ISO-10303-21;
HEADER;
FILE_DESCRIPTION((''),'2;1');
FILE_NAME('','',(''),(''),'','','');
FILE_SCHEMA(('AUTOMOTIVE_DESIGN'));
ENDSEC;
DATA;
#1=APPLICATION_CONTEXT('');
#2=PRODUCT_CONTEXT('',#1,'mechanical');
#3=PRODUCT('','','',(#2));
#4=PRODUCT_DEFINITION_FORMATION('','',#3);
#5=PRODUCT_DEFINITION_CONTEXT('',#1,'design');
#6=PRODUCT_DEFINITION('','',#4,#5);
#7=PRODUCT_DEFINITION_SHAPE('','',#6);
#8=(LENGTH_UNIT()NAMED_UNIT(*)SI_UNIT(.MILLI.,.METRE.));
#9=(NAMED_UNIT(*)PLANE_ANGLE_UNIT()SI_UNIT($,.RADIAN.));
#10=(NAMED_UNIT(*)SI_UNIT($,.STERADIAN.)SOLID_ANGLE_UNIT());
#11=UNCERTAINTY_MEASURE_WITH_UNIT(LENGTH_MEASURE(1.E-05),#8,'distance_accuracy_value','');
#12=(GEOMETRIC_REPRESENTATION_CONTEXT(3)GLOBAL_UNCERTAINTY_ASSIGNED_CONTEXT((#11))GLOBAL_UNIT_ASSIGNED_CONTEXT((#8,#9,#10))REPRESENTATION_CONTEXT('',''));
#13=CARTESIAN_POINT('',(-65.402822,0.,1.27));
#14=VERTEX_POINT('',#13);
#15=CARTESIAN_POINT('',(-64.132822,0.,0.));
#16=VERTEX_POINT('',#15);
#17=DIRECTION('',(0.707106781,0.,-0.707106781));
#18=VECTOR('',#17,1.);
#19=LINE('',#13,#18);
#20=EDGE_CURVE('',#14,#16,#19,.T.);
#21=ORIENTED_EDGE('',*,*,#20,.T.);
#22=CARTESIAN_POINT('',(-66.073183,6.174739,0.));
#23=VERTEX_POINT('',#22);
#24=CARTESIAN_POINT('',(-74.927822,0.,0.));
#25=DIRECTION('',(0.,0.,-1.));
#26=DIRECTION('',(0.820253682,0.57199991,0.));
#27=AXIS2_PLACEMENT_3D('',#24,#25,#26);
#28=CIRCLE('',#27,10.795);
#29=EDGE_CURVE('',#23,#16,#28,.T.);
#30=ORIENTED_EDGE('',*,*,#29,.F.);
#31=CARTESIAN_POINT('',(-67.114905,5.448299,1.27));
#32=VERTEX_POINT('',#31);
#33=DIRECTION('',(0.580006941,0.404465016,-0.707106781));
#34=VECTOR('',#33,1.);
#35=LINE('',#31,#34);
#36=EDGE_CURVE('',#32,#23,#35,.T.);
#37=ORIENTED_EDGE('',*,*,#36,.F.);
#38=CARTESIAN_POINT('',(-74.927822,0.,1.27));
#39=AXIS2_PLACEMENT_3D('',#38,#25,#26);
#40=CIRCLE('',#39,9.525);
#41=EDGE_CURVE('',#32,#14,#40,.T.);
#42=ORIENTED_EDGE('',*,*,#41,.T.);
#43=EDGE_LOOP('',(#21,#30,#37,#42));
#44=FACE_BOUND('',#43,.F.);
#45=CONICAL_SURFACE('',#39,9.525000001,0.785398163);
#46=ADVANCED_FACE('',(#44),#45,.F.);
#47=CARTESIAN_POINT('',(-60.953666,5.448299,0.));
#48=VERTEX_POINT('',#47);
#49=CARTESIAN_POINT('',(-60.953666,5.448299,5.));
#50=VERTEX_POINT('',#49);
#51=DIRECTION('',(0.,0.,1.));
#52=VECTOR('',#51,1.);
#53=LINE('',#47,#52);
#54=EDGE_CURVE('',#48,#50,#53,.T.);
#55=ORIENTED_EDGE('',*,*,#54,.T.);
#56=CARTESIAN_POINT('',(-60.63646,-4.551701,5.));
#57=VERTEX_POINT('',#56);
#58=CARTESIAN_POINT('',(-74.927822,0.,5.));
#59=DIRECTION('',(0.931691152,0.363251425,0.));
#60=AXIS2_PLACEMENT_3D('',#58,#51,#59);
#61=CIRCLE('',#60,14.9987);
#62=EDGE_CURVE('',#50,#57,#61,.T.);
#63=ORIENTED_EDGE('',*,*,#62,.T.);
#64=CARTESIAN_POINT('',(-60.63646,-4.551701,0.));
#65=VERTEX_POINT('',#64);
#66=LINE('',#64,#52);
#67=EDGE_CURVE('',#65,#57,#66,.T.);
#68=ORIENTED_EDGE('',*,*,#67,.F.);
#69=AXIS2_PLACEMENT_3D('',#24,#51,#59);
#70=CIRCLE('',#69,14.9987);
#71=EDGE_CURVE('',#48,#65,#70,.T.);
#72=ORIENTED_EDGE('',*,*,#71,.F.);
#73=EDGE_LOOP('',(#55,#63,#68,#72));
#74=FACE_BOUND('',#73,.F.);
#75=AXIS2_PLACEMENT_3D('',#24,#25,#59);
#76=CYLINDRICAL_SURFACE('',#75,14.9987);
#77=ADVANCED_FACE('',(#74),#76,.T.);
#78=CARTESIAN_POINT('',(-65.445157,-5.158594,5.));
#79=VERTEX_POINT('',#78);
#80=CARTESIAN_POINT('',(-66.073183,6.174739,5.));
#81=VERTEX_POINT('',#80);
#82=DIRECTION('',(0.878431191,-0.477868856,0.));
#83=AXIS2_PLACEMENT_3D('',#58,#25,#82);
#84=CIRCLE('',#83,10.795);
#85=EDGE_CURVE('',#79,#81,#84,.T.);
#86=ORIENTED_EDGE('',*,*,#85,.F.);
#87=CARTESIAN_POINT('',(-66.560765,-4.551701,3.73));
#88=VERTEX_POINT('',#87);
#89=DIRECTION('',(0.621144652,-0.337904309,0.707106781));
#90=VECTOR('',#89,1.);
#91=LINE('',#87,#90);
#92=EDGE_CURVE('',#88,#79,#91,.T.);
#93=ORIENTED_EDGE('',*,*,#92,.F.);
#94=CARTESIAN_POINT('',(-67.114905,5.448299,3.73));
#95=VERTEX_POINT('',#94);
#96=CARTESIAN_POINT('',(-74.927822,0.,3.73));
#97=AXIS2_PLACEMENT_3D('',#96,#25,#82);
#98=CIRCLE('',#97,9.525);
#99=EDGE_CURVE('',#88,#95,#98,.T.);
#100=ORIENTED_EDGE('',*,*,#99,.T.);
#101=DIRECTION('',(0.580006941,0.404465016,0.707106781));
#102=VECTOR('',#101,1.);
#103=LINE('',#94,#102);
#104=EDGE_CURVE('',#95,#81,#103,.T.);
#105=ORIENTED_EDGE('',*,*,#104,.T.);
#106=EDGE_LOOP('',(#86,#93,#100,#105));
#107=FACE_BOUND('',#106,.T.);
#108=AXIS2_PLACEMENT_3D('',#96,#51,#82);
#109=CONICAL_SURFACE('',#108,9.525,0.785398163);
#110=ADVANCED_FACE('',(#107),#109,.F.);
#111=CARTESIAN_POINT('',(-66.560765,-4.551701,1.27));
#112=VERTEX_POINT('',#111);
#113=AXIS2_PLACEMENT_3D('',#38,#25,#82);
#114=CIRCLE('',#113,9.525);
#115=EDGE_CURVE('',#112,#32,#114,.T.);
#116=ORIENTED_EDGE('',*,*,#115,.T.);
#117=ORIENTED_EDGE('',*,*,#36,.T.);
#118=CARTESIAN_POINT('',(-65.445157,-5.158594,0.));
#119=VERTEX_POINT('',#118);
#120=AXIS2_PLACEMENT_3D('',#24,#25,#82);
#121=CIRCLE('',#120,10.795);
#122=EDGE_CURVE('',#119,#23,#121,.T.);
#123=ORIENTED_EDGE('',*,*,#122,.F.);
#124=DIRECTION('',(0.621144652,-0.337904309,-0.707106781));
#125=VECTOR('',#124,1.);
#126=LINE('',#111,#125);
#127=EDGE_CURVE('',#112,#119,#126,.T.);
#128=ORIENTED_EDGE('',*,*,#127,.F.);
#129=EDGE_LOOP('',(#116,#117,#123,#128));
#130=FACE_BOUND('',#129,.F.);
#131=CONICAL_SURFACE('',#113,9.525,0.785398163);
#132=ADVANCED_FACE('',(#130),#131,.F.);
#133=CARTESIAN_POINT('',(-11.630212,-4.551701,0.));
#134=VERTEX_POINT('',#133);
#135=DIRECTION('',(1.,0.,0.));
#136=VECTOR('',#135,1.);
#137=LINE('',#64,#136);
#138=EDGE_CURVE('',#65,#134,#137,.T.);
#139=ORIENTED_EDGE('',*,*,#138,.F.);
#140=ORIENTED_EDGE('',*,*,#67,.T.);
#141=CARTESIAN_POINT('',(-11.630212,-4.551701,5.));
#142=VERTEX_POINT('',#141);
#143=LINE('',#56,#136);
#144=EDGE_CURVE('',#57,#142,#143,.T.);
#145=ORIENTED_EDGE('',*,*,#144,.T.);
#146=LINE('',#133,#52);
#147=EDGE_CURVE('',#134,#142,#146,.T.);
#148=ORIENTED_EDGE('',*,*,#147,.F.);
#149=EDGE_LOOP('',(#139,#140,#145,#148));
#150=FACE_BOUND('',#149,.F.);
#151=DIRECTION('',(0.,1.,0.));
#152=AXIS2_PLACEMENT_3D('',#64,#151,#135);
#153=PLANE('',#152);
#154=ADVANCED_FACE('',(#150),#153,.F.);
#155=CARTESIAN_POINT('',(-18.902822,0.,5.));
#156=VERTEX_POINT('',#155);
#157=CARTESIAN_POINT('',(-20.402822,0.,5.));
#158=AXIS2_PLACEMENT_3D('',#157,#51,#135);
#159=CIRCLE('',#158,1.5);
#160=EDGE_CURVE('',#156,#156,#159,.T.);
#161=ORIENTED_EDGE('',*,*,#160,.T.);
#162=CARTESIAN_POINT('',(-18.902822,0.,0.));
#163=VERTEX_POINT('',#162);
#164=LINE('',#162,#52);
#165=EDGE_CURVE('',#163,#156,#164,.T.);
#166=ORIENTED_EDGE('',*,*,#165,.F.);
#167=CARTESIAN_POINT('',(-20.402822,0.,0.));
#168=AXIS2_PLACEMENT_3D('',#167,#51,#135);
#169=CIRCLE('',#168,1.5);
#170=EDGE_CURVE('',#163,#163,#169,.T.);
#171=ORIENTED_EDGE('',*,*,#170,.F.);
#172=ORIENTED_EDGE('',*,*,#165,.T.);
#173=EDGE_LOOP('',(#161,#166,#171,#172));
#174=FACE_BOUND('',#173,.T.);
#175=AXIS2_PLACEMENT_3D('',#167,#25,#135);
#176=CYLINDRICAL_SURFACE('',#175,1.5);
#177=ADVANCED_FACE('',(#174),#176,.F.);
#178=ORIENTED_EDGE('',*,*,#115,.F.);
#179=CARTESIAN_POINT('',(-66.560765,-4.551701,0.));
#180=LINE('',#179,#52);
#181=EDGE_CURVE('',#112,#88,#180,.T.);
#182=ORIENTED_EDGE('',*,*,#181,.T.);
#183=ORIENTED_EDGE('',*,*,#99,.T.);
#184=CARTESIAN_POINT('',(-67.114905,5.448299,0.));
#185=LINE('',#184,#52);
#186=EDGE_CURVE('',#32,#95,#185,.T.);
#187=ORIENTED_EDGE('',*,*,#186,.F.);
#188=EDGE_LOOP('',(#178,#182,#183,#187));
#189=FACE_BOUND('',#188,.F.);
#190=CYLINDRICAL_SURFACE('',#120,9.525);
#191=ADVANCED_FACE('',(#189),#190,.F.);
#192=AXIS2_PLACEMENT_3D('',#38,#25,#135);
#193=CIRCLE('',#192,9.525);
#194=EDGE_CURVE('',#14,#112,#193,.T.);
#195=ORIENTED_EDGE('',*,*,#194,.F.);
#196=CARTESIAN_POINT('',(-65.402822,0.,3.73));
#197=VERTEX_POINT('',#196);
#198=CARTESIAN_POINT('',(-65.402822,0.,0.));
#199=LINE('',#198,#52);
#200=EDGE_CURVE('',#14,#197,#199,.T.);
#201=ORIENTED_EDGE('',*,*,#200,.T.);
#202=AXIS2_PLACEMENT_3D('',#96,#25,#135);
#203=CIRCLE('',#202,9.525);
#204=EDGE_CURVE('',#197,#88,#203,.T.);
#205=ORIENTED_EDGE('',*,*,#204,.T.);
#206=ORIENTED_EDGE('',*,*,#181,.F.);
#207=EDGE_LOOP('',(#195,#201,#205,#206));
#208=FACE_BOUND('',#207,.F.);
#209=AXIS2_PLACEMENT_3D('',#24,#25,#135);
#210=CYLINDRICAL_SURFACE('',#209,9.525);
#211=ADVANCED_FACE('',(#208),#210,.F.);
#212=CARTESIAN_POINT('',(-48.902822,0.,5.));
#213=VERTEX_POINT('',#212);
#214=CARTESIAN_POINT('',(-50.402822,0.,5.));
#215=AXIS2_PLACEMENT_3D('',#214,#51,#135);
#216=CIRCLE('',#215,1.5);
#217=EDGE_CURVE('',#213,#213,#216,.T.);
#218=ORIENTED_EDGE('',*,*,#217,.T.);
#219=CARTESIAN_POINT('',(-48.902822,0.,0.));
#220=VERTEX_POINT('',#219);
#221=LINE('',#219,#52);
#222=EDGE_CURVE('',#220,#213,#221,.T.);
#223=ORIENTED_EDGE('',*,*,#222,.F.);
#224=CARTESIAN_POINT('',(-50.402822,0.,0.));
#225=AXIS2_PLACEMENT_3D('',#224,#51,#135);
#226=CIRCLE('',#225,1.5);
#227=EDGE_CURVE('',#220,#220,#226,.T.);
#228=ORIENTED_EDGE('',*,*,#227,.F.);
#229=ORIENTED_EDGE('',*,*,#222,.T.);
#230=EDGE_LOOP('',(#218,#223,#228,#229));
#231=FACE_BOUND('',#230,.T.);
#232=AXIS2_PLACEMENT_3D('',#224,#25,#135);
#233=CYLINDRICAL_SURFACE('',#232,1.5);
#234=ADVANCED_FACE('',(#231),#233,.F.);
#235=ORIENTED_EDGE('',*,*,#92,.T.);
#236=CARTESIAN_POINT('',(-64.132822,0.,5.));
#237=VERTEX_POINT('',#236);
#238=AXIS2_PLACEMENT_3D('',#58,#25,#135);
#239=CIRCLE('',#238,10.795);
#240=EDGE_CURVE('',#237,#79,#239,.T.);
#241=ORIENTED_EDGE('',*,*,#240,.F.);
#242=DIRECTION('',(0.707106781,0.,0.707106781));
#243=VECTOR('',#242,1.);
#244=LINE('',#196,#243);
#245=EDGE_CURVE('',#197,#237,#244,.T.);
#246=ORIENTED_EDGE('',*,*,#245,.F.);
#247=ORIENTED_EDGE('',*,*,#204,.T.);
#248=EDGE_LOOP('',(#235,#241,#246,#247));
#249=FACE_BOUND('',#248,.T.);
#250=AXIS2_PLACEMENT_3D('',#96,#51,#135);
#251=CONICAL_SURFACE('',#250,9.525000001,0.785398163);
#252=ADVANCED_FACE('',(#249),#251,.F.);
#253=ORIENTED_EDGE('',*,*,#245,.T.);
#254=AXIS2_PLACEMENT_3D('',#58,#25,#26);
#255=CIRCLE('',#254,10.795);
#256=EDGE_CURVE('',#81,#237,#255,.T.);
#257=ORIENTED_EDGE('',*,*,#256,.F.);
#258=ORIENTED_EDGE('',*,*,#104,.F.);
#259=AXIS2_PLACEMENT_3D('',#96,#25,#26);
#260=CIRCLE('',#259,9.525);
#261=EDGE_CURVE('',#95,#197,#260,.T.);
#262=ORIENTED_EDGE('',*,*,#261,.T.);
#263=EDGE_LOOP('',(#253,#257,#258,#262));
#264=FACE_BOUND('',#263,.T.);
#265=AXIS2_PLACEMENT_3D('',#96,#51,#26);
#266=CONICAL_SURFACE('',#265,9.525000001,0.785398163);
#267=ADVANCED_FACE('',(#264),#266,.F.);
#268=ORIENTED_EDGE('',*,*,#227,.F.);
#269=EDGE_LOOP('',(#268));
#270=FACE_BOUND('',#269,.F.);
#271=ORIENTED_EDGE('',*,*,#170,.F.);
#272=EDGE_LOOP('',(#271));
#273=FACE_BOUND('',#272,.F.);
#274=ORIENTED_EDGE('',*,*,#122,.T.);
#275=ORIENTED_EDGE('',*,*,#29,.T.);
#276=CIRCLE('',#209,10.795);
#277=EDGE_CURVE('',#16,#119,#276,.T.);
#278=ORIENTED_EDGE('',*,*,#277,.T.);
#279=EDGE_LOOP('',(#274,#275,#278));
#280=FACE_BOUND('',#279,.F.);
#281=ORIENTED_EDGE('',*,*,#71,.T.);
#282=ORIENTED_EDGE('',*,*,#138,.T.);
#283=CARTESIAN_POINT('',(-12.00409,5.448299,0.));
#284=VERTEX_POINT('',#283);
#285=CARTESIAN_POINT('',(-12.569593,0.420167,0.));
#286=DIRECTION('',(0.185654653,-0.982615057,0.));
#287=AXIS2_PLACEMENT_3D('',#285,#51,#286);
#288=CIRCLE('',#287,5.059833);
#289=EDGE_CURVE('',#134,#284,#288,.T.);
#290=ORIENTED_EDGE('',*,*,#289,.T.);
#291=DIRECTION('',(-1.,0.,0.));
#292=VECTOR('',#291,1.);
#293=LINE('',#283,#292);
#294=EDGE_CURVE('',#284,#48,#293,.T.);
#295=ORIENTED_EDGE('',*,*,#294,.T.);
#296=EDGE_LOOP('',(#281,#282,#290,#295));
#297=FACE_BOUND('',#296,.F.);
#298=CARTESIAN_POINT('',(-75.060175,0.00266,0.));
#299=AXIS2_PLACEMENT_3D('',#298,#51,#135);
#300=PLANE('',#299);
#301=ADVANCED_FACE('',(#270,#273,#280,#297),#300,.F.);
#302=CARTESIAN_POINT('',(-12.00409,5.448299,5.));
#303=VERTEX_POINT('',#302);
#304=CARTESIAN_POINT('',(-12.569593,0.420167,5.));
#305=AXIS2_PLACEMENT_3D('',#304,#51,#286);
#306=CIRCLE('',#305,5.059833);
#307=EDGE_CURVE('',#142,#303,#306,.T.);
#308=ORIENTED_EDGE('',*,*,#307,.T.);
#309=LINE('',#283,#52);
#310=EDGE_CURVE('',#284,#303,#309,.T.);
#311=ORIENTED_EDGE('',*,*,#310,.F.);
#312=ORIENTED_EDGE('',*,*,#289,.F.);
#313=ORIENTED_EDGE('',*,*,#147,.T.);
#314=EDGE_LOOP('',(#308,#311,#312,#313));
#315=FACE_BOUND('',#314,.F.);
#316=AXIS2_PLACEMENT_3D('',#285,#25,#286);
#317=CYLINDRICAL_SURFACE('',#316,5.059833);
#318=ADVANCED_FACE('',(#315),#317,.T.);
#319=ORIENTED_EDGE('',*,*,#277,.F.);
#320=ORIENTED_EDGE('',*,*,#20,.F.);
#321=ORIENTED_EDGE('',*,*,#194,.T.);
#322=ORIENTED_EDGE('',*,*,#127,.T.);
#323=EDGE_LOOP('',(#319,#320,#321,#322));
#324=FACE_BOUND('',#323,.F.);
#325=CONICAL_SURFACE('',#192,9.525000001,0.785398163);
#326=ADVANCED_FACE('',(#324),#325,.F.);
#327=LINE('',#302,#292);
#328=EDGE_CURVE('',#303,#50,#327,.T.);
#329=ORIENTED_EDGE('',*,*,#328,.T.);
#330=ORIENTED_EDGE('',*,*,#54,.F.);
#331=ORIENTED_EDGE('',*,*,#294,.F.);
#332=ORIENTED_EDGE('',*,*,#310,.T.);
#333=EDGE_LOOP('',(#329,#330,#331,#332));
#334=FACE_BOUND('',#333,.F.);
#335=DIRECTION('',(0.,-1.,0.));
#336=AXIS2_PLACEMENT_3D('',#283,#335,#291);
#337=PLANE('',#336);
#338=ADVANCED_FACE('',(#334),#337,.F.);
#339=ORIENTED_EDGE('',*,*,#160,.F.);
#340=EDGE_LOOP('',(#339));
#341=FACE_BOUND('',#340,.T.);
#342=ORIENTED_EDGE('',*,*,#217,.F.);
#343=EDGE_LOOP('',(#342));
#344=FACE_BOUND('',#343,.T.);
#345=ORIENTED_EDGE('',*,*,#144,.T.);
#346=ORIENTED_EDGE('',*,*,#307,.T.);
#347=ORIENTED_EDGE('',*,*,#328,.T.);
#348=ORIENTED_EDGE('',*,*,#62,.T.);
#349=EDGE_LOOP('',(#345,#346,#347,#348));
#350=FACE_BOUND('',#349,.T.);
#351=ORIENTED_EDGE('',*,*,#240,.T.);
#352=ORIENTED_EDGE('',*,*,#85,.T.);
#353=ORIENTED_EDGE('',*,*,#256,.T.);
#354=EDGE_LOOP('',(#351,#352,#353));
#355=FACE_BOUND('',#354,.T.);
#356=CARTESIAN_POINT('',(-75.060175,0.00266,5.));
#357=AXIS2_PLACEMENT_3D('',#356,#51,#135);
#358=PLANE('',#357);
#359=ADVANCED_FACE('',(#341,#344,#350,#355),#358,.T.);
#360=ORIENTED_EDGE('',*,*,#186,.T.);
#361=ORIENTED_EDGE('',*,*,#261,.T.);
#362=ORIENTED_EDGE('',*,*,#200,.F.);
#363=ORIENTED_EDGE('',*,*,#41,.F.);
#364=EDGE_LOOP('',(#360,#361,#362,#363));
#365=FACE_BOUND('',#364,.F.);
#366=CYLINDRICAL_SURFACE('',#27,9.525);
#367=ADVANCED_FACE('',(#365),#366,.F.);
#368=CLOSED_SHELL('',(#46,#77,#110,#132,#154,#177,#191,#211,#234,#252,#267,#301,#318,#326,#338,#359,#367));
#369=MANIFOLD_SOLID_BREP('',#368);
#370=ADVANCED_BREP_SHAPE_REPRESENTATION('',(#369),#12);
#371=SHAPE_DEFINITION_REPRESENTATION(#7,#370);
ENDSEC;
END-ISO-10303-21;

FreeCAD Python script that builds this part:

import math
import FreeCAD as App
import Part
import Sketcher
from FreeCAD import Vector
Q = App.Units.Quantity


def edges_at(feature, points):
    """Names of the edges that pass closest to the given points."""
    edges = feature.Shape.Edges
    near = lambda p: min(range(len(edges)), key=lambda i: edges[i].distToShape(Part.Vertex(*p))[0])
    return sorted({f"Edge{near(p) + 1}" for p in points})

doc = App.newDocument("Part")
body = doc.addObject("PartDesign::Body", "Body")

sketch1 = doc.addObject("Sketcher::SketchObject", "Sketch")
body.addObject(sketch1)
sketch1.AttachmentSupport = (doc.XY_Plane, [""])
sketch1.MapMode = "FlatFace"
sketch1.addGeometry(Part.ArcOfCircle(Part.Circle(Vector(-74.9, 0, 0), Vector(0, 0, 1), 15), math.radians(21), math.radians(342)), False)
sketch1.addGeometry(Part.LineSegment(Vector(-60.6, -4.6, 0), Vector(-11.6, -4.6, 0)), False)
sketch1.addGeometry(Part.ArcOfCircle(Part.Circle(Vector(-12.6, 0.4, 0), Vector(0, 0, 1), 5.1), math.radians(-79), math.radians(84)), False)
sketch1.addGeometry(Part.LineSegment(Vector(-12, 5.4, 0), Vector(-61, 5.4, 0)), False)
sketch1.addGeometry(Part.Circle(Vector(-50.4, 0, 0), Vector(0, 0, 1), 1.5), False)
sketch1.addGeometry(Part.Circle(Vector(-20.4, 0, 0), Vector(0, 0, 1), 1.5), False)
sketch1.addGeometry(Part.ArcOfCircle(Part.Circle(Vector(-74.9, 0, 0), Vector(0, 0, 1), 9.5), math.radians(35), math.radians(331)), False)
sketch1.addGeometry(Part.ArcOfCircle(Part.Circle(Vector(-74.9, 0, 0), Vector(0, 0, 1), 9.5), math.radians(0), math.radians(35)), False)
sketch1.addGeometry(Part.ArcOfCircle(Part.Circle(Vector(-74.9, 0, 0), Vector(0, 0, 1), 9.5), math.radians(-29), math.radians(0)), False)
sketch1.addConstraint(Sketcher.Constraint("Coincident", 0, 2, 1, 1))
sketch1.addConstraint(Sketcher.Constraint("Coincident", 1, 2, 2, 1))
sketch1.addConstraint(Sketcher.Constraint("Coincident", 2, 2, 3, 1))
sketch1.addConstraint(Sketcher.Constraint("Coincident", 3, 2, 0, 1))
sketch1.addConstraint(Sketcher.Constraint("Tangent", 6, 1, 7, 2))
sketch1.addConstraint(Sketcher.Constraint("Tangent", 7, 1, 8, 2))
sketch1.addConstraint(Sketcher.Constraint("Tangent", 8, 1, 6, 2))
sketch1.addConstraint(Sketcher.Constraint("Horizontal", 1))
sketch1.addConstraint(Sketcher.Constraint("Horizontal", 3))
sketch1.addConstraint(Sketcher.Constraint("Coincident", 6, 3, 0, 3))
sketch1.addConstraint(Sketcher.Constraint("Equal", 4, 5))
sketch1.addConstraint(Sketcher.Constraint("PointOnObject", 0, 3, -1))
sketch1.addConstraint(Sketcher.Constraint("PointOnObject", 4, 3, -1))
sketch1.addConstraint(Sketcher.Constraint("PointOnObject", 5, 3, -1))
sketch1.addConstraint(Sketcher.Constraint("PointOnObject", 7, 1, -1))
sketch1.addConstraint(Sketcher.Constraint("Horizontal", 3, 2, 6, 1))
sketch1.addConstraint(Sketcher.Constraint("Horizontal", 1, 2, 8, 1))
sketch1.addConstraint(Sketcher.Constraint("Radius", 6, Q("0.375 in")))
sketch1.addConstraint(Sketcher.Constraint("Radius", 0, Q("0.5905 in")))
sketch1.addConstraint(Sketcher.Constraint("Diameter", 4, 3.0))
sketch1.addConstraint(Sketcher.Constraint("DistanceY", -1, 1, 2, 2, Q("0.2145 in")))
sketch1.addConstraint(Sketcher.Constraint("Radius", 2, 5.059833))
sketch1.addConstraint(Sketcher.Constraint("DistanceX", 1, 1, 1, 2, 49.006248))
sketch1.addConstraint(Sketcher.Constraint("DistanceY", 0, 2, -1, 1, 4.551701))
sketch1.addConstraint(Sketcher.Constraint("DistanceX", 0, 3, 4, 3, 24.525))
sketch1.addConstraint(Sketcher.Constraint("DistanceX", 4, 3, 5, 3, 30.0))
sketch1.addConstraint(Sketcher.Constraint("DistanceX", 3, 2, 3, 1, 48.949576))
sketch1.addConstraint(Sketcher.Constraint("DistanceX", 0, 3, -1, 1, 74.927822))
pad1 = doc.addObject("PartDesign::Pad", "Pad")
body.addObject(pad1)
pad1.Profile = sketch1
pad1.Length = 5
doc.recompute()

chamfer = doc.addObject("PartDesign::Chamfer", "Chamfer")
body.addObject(chamfer)
chamfer.Base = (pad1, edges_at(pad1, [(-84.438, -0.527, 5), (-84.438, -0.527, 0)]))
chamfer.Size = Q("0.05 in")

doc.recompute()
